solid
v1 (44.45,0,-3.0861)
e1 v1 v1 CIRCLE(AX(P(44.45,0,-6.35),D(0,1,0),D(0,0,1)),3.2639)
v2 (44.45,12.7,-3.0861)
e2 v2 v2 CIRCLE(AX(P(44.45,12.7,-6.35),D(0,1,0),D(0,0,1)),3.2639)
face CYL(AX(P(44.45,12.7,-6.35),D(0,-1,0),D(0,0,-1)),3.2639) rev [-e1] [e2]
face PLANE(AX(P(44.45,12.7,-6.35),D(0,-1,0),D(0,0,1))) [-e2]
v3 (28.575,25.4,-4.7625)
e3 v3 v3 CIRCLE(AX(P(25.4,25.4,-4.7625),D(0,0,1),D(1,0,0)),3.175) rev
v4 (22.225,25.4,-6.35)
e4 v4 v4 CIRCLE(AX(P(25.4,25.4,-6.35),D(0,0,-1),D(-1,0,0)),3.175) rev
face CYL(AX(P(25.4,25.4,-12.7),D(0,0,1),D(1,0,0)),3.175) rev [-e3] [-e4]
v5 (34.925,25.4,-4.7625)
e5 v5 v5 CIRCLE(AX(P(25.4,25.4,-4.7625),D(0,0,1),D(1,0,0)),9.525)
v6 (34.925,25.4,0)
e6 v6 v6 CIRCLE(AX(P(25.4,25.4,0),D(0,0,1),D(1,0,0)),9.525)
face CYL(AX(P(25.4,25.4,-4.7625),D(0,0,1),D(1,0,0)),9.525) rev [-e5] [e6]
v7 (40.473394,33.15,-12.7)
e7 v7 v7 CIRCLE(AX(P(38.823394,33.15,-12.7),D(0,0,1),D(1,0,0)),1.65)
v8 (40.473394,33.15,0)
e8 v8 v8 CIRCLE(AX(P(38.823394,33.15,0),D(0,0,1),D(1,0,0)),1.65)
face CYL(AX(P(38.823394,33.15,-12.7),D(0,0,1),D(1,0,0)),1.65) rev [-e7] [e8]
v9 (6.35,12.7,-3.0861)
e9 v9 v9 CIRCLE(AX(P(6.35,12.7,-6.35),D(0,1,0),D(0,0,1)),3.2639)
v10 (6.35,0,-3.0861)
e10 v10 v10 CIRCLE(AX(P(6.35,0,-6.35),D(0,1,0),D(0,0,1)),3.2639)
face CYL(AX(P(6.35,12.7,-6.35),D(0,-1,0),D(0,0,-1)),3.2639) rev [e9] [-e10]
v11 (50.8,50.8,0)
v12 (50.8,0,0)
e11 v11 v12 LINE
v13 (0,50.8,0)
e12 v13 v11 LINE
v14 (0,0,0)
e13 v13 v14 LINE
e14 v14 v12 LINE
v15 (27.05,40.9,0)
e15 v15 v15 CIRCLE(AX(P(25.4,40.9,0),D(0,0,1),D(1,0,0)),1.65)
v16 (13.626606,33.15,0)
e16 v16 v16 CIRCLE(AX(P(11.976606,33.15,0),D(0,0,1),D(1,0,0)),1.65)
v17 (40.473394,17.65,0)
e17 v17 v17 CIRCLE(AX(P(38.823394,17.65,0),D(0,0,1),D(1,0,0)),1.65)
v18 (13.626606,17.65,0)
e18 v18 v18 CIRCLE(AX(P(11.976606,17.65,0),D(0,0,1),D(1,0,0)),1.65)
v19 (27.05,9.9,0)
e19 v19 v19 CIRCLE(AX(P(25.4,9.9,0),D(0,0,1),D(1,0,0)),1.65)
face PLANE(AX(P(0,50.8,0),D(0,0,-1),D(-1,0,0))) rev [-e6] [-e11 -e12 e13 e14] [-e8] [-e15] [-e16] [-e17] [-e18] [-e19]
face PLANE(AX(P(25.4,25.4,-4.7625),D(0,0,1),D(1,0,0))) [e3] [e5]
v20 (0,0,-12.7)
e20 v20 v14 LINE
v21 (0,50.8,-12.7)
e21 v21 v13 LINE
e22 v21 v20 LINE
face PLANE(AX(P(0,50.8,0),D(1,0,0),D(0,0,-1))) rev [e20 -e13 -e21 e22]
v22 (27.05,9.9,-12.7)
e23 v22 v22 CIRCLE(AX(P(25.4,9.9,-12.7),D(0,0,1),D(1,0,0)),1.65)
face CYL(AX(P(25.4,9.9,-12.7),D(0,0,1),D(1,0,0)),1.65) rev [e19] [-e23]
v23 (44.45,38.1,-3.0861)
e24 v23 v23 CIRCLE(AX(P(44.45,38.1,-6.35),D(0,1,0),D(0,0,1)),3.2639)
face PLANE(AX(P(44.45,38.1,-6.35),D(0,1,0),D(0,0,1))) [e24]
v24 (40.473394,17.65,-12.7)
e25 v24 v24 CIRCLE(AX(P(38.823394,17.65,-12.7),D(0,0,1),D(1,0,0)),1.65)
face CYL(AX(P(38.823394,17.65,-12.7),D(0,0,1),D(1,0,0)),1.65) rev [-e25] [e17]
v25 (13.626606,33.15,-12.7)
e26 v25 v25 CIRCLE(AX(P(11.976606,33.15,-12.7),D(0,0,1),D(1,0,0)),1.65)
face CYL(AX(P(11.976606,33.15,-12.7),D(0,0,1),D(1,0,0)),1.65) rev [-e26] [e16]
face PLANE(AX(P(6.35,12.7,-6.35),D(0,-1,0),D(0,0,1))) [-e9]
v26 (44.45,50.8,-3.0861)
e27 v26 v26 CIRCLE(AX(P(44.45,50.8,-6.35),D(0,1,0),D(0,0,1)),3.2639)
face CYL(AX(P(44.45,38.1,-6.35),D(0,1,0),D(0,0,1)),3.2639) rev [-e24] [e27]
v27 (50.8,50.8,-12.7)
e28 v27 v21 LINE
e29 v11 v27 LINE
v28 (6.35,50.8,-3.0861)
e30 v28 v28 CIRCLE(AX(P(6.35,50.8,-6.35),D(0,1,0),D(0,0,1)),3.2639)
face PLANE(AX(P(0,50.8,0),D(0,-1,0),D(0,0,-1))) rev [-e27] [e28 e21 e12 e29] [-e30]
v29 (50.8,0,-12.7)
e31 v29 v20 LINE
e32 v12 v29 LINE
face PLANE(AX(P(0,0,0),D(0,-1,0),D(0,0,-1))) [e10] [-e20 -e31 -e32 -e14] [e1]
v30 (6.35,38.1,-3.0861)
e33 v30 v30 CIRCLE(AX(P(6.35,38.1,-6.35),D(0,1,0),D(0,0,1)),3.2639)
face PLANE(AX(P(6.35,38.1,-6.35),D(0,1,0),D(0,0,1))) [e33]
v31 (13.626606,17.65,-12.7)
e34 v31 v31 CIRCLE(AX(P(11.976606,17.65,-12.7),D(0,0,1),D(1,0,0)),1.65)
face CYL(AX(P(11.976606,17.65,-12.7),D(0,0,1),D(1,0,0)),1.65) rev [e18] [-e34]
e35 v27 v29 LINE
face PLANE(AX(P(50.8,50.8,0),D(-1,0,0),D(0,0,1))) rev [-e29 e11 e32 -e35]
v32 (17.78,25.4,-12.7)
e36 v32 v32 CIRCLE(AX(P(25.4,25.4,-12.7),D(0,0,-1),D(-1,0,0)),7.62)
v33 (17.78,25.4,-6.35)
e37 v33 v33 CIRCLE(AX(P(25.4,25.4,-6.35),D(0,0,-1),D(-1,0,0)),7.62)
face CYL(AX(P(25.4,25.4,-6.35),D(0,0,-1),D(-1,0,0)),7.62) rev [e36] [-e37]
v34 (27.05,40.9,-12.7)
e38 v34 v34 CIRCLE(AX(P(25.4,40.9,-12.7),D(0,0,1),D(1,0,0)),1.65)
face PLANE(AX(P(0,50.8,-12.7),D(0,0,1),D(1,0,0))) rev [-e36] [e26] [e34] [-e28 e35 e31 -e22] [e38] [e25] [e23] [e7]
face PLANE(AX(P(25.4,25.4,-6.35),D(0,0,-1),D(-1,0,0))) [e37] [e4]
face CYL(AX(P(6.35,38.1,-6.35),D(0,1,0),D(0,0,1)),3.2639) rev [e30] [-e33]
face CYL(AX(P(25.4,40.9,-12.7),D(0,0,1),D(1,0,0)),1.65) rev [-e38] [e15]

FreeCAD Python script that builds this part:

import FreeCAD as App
import Part
import Sketcher
from FreeCAD import Vector
Q = App.Units.Quantity

doc = App.newDocument("Part")
body = doc.addObject("PartDesign::Body", "Body")

# Sketch on XZ plane
sketch1 = body.newObject("Sketcher::SketchObject", "Sketch")
sketch1.AttachmentSupport = (doc.getObject("XZ_Plane"), [""])
sketch1.MapMode = "FlatFace"
sketch1.addGeometry([
    Part.LineSegment(Vector(0, -13, 0), Vector(0, 0, 0)),
    Part.LineSegment(Vector(0, 0, 0), Vector(51, 0, 0)),
    Part.LineSegment(Vector(51, 0, 0), Vector(51, -13, 0)),
    Part.LineSegment(Vector(51, -13, 0), Vector(0, -13, 0)),
], False)
sketch1.addConstraint([
    Sketcher.Constraint("Coincident", 0, 2, 1, 1),
    Sketcher.Constraint("Coincident", 1, 2, 2, 1),
    Sketcher.Constraint("Coincident", 2, 2, 3, 1),
    Sketcher.Constraint("Coincident", 3, 2, 0, 1),
    Sketcher.Constraint("Vertical", 0),
    Sketcher.Constraint("Horizontal", 1),
    Sketcher.Constraint("Vertical", 2),
    Sketcher.Constraint("Horizontal", 3),
    Sketcher.Constraint("Coincident", 0, 2, -1, 1),
    Sketcher.Constraint("DistanceX", 1, 1, 1, 2, Q("2 in")),
    Sketcher.Constraint("DistanceY", 0, 1, 0, 2, Q("0.5 in")),
])
pad1 = body.newObject("PartDesign::Pad", "Pad")
pad1.Profile = sketch1
pad1.Length = Q("2 in")
pad1.Reversed = True

# Sketch on XY plane
sketch2 = body.newObject("Sketcher::SketchObject", "Sketch001")
sketch2.AttachmentSupport = (doc.getObject("XY_Plane"), [""])
sketch2.MapMode = "FlatFace"
sketch2.addGeometry(Part.Circle(Vector(25.4, 25.4, 0), Vector(0, 0, 1), 3.2), False)
sketch2.addConstraint([
    Sketcher.Constraint("Diameter", 0, Q("0.25 in")),
    Sketcher.Constraint("DistanceX", -1, 1, 0, 3, Q("1 in")),
    Sketcher.Constraint("DistanceY", -1, 1, 0, 3, Q("1 in")),
])
pocket1 = body.newObject("PartDesign::Pocket", "Pocket")
pocket1.Profile = sketch2
pocket1.Type = "ThroughAll"

# Sketch on XY plane
sketch3 = body.newObject("Sketcher::SketchObject", "Sketch002")
sketch3.AttachmentSupport = (doc.getObject("XY_Plane"), [""])
sketch3.MapMode = "FlatFace"
sketch3.addGeometry(Part.Circle(Vector(25, 25, 0), Vector(0, 0, 1), 10), False)
sketch3.addConstraint([
    Sketcher.Constraint("Diameter", 0, Q("0.75 in")),
    Sketcher.Constraint("DistanceX", -1, 1, 0, 3, Q("1 in")),
    Sketcher.Constraint("DistanceY", -1, 1, 0, 3, Q("1 in")),
])
pocket2 = body.newObject("PartDesign::Pocket", "Pocket001")
pocket2.Profile = sketch3
pocket2.Length = Q("0.1875 in")

# Sketch on XZ plane
sketch4 = body.newObject("Sketcher::SketchObject", "Sketch003")
sketch4.AttachmentSupport = (doc.getObject("XZ_Plane"), [""])
sketch4.MapMode = "FlatFace"
sketch4.AttachmentOffset = App.Placement(Vector(0, 0, -2 * 25.4), App.Rotation())
sketch4.addGeometry([
    Part.Circle(Vector(6.3, -6.3, 0), Vector(0, 0, 1), 3.3),
    Part.Circle(Vector(44.5, -6.3, 0), Vector(0, 0, 1), 3.3),
], False)
sketch4.addConstraint([
    Sketcher.Constraint("Equal", 0, 1),
    Sketcher.Constraint("Horizontal", 0, 3, 1, 3),
    Sketcher.Constraint("Diameter", 0, Q("0.257 in")),
    Sketcher.Constraint("DistanceX", 0, 3, 1, 3, Q("1.5 in")),
    Sketcher.Constraint("DistanceX", -1, 1, 0, 3, Q("0.25 in")),
    Sketcher.Constraint("DistanceY", 0, 3, -1, 1, Q("0.25 in")),
])
pocket3 = body.newObject("PartDesign::Pocket", "Pocket002")
pocket3.Profile = sketch4
pocket3.Length = Q("0.5 in")
pocket3.Reversed = True
doc.recompute()

datumplane = body.newObject("PartDesign::Plane", "DatumPlane")
datumplane.AttachmentSupport = (doc.getObject("XZ_Plane"), [""])
datumplane.MapMode = "FlatFace"
datumplane.AttachmentOffset = App.Placement(Vector(0, 0, -1 * 25.4), App.Rotation())
mirrored = body.newObject("PartDesign::Mirrored", "Mirrored")
mirrored.Originals = [pocket3]
mirrored.MirrorPlane = (datumplane, [""])
body.Tip = mirrored

# Sketch on XY plane
sketch5 = body.newObject("Sketcher::SketchObject", "Sketch004")
sketch5.AttachmentSupport = (doc.getObject("XY_Plane"), [""])
sketch5.MapMode = "FlatFace"
sketch5.addGeometry([
    Part.Circle(Vector(25.4, 40.9, 0), Vector(0, 0, 1), 1.6),  # 0
    Part.Circle(Vector(38.8, 33.1, 0), Vector(0, 0, 1), 1.6),  # 1
    Part.Circle(Vector(38.8, 17.6, 0), Vector(0, 0, 1), 1.6),  # 2
    Part.Circle(Vector(25.4, 9.9, 0), Vector(0, 0, 1), 1.6),  # 3
    Part.Circle(Vector(12, 17.6, 0), Vector(0, 0, 1), 1.6),  # 4
    Part.Circle(Vector(12, 33.1, 0), Vector(0, 0, 1), 1.6),  # 5
], False)
sketch5.addConstraint([
    Sketcher.Constraint("Equal", 0, 1),
    Sketcher.Constraint("Equal", 1, 2),
    Sketcher.Constraint("Equal", 2, 3),
    Sketcher.Constraint("Equal", 3, 4),
    Sketcher.Constraint("Equal", 4, 5),
    Sketcher.Constraint("Horizontal", 2, 3, 4, 3),
    Sketcher.Constraint("Horizontal", 1, 3, 5, 3),
    Sketcher.Constraint("Vertical", 1, 3, 2, 3),
    Sketcher.Constraint("Vertical", 0, 3, 3, 3),
    Sketcher.Constraint("Vertical", 4, 3, 5, 3),
    Sketcher.Constraint("DistanceX", -1, 1, 0, 3, Q("1 in")),
    Sketcher.Constraint("Diameter", 0, Q("3.3 mm")),
    Sketcher.Constraint("DistanceY", -1, 1, 0, 3, Q("40.9 mm")),
    Sketcher.Constraint("DistanceY", -1, 1, 1, 3, Q("33.15 mm")),
    Sketcher.Constraint("DistanceY", -1, 1, 2, 3, Q("17.65 mm")),
    Sketcher.Constraint("DistanceY", -1, 1, 3, 3, Q("9.9 mm")),
    Sketcher.Constraint("DistanceX", -1, 1, 1, 3, Q("38.823394 mm")),
    Sketcher.Constraint("DistanceX", -1, 1, 4, 3, Q("11.976606 mm")),
])
pocket4 = body.newObject("PartDesign::Pocket", "Pocket003")
pocket4.Profile = sketch5
pocket4.Type = "ThroughAll"

# Sketch on XY plane
sketch6 = body.newObject("Sketcher::SketchObject", "Sketch005")
sketch6.AttachmentSupport = (doc.getObject("XY_Plane"), [""])
sketch6.MapMode = "FlatFace"
sketch6.AttachmentOffset = App.Placement(Vector(0, 0, -0.5 * 25.4), App.Rotation())
sketch6.addGeometry(Part.Circle(Vector(25, 25, 0), Vector(0, 0, 1), 8), False)
sketch6.addConstraint([
    Sketcher.Constraint("Diameter", 0, Q("0.6 in")),
    Sketcher.Constraint("DistanceX", -1, 1, 0, 3, Q("1 in")),
    Sketcher.Constraint("DistanceY", -1, 1, 0, 3, Q("1 in")),
])
pocket5 = body.newObject("PartDesign::Pocket", "Pocket004")
pocket5.Profile = sketch6
pocket5.Length = Q("0.25 in")
pocket5.Reversed = True

doc.recompute()
